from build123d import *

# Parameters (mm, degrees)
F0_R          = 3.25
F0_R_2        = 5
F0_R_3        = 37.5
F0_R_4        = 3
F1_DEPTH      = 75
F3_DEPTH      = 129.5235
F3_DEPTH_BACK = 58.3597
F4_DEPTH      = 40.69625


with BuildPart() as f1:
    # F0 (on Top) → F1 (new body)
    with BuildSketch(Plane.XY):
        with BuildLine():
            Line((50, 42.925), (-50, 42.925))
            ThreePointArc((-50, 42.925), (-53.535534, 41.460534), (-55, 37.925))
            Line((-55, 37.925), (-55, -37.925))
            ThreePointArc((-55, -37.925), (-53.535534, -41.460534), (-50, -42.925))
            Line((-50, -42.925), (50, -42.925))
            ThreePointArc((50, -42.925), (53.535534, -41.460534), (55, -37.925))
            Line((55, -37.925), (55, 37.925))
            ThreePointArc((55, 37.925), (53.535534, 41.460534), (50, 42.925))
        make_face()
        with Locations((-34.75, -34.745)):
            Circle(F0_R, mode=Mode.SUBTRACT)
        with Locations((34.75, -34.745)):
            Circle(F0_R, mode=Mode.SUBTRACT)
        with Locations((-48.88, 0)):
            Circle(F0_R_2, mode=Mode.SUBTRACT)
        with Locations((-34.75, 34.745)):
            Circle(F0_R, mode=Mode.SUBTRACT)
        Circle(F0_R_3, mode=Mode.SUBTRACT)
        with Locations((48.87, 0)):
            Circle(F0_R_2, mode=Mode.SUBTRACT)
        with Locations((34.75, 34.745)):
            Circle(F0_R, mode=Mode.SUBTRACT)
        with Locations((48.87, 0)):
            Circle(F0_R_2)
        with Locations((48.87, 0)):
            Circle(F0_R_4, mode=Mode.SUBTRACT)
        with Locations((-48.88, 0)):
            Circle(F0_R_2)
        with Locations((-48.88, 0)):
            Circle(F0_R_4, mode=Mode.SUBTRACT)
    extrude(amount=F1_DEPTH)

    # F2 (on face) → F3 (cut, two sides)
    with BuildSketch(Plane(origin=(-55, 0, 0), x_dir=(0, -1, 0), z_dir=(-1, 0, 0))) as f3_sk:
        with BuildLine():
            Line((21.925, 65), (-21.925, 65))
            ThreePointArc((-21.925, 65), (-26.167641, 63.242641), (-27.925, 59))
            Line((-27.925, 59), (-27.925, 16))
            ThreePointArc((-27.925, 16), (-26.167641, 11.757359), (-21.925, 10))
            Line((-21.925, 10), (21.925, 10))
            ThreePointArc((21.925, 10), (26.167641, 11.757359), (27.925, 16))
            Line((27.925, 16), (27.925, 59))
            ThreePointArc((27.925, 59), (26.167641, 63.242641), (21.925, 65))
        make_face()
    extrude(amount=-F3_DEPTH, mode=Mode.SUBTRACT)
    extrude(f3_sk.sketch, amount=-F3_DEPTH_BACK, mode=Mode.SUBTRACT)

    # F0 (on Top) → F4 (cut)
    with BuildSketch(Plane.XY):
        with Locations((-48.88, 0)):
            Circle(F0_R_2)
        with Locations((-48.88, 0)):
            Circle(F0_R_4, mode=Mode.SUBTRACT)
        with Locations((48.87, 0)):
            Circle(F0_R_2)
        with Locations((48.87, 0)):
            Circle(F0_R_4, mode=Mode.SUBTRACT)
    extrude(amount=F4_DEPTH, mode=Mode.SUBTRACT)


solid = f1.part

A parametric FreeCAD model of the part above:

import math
import FreeCAD as App
import Part
import Sketcher
Q = App.Units.Quantity

doc = App.newDocument("Part")
body = doc.addObject("PartDesign::Body", "Body")

# Sketch on XY plane
sketch1 = body.newObject("Sketcher::SketchObject", "Sketch")
sketch1.AttachmentSupport = (doc.getObject("XY_Plane"), [""])
sketch1.MapMode = "FlatFace"
sketch1.addGeometry([
    Part.LineSegment(App.Vector(50, 42.9, 0), App.Vector(-50, 42.9, 0)),  # 0
    Part.ArcOfCircle(Part.Circle(App.Vector(-50, 37.9, 0), App.Vector(0, 0, 1), 5), math.radians(90), math.radians(180)),  # 1
    Part.LineSegment(App.Vector(-55, 37.9, 0), App.Vector(-55, -37.9, 0)),  # 2
    Part.ArcOfCircle(Part.Circle(App.Vector(-50, -37.9, 0), App.Vector(0, 0, 1), 5), math.radians(180), math.radians(270)),  # 3
    Part.LineSegment(App.Vector(-50, -42.9, 0), App.Vector(50, -42.9, 0)),  # 4
    Part.ArcOfCircle(Part.Circle(App.Vector(50, -37.9, 0), App.Vector(0, 0, 1), 5), math.radians(-90), math.radians(0)),  # 5
    Part.LineSegment(App.Vector(55, -37.9, 0), App.Vector(55, 37.9, 0)),  # 6
    Part.ArcOfCircle(Part.Circle(App.Vector(50, 37.9, 0), App.Vector(0, 0, 1), 5), math.radians(0), math.radians(90)),  # 7
    Part.Circle(App.Vector(-34.8, -34.7, 0), App.Vector(0, 0, 1), 3.2),  # 8
    Part.Circle(App.Vector(34.8, -34.7, 0), App.Vector(0, 0, 1), 3.2),  # 9
    Part.Circle(App.Vector(-48.9, 0, 0), App.Vector(0, 0, 1), 3),  # 10
    Part.Circle(App.Vector(-34.8, 34.7, 0), App.Vector(0, 0, 1), 3.2),  # 11
    Part.Circle(App.Vector(0, 0, 0), App.Vector(0, 0, 1), 37.5),  # 12
    Part.Circle(App.Vector(48.9, 0, 0), App.Vector(0, 0, 1), 3),  # 13
    Part.Circle(App.Vector(34.8, 34.7, 0), App.Vector(0, 0, 1), 3.2),  # 14
], False)
sketch1.addConstraint([
    Sketcher.Constraint("Tangent", 0, 2, 1, 1),
    Sketcher.Constraint("Tangent", 1, 2, 2, 1),
    Sketcher.Constraint("Tangent", 2, 2, 3, 1),
    Sketcher.Constraint("Tangent", 3, 2, 4, 1),
    Sketcher.Constraint("Tangent", 4, 2, 5, 1),
    Sketcher.Constraint("Tangent", 5, 2, 6, 1),
    Sketcher.Constraint("Tangent", 6, 2, 7, 1),
    Sketcher.Constraint("Tangent", 7, 2, 0, 1),
    Sketcher.Constraint("Horizontal", 0),
    Sketcher.Constraint("Vertical", 2),
    Sketcher.Constraint("Horizontal", 4),
    Sketcher.Constraint("Vertical", 6),
    Sketcher.Constraint("Coincident", 12, 3, -1, 1),
    Sketcher.Constraint("Equal", 1, 3),
    Sketcher.Constraint("Equal", 3, 5),
    Sketcher.Constraint("Equal", 5, 7),
    Sketcher.Constraint("Equal", 8, 9),
    Sketcher.Constraint("Equal", 9, 11),
    Sketcher.Constraint("Equal", 10, 13),
    Sketcher.Constraint("Equal", 11, 14),
    Sketcher.Constraint("Symmetric", 1, 3, 5, 3, -1, 1),
    Sketcher.Constraint("Symmetric", 9, 3, 11, 3, -1, 1),
    Sketcher.Constraint("Symmetric", 8, 3, 14, 3, -1, 1),
    Sketcher.Constraint("Symmetric", 8, 3, 9, 3, -2),
    Sketcher.Constraint("PointOnObject", 10, 3, -1),
    Sketcher.Constraint("PointOnObject", 13, 3, -1),
    Sketcher.Constraint("Diameter", 10, Q("6 mm")),
    Sketcher.Constraint("Diameter", 12, Q("75 mm")),
    Sketcher.Constraint("Radius", 1, Q("5 mm")),
    Sketcher.Constraint("Diameter", 8, Q("6.5 mm")),
    Sketcher.Constraint("DistanceX", 0, 2, 0, 1, Q("100 mm")),
    Sketcher.Constraint("DistanceY", 2, 2, 2, 1, Q("75.85 mm")),
    Sketcher.Constraint("DistanceX", 8, 3, 9, 3, Q("69.5 mm")),
    Sketcher.Constraint("DistanceX", 10, 3, -1, 1, Q("48.88 mm")),
    Sketcher.Constraint("DistanceX", -1, 1, 13, 3, Q("48.87 mm")),
    Sketcher.Constraint("DistanceY", 3, 3, 8, 3, Q("3.18 mm")),
])
pad1 = body.newObject("PartDesign::Pad", "Pad")
pad1.Profile = sketch1
pad1.Length = 75

# Sketch on YZ plane
sketch2 = body.newObject("Sketcher::SketchObject", "Sketch001")
sketch2.AttachmentSupport = (doc.getObject("YZ_Plane"), [""])
sketch2.MapMode = "FlatFace"
sketch2.AttachmentOffset = App.Placement(App.Vector(0, 0, -55), App.Rotation())
sketch2.addGeometry([
    Part.LineSegment(App.Vector(-22, 65, 0), App.Vector(22, 65, 0)),  # 0
    Part.ArcOfCircle(Part.Circle(App.Vector(22, 59, 0), App.Vector(0, 0, 1), 6), math.radians(0), math.radians(90)),  # 1
    Part.LineSegment(App.Vector(28, 59, 0), App.Vector(28, 16, 0)),  # 2
    Part.ArcOfCircle(Part.Circle(App.Vector(22, 16, 0), App.Vector(0, 0, 1), 6), math.radians(-90), math.radians(0)),  # 3
    Part.LineSegment(App.Vector(22, 10, 0), App.Vector(-22, 10, 0)),  # 4
    Part.ArcOfCircle(Part.Circle(App.Vector(-22, 16, 0), App.Vector(0, 0, 1), 6), math.radians(180), math.radians(270)),  # 5
    Part.LineSegment(App.Vector(-28, 16, 0), App.Vector(-28, 59, 0)),  # 6
    Part.ArcOfCircle(Part.Circle(App.Vector(-22, 59, 0), App.Vector(0, 0, 1), 6), math.radians(90), math.radians(180)),  # 7
], False)
sketch2.addConstraint([
    Sketcher.Constraint("Tangent", 0, 2, 1, 2),
    Sketcher.Constraint("Tangent", 1, 1, 2, 1),
    Sketcher.Constraint("Tangent", 2, 2, 3, 2),
    Sketcher.Constraint("Tangent", 3, 1, 4, 1),
    Sketcher.Constraint("Tangent", 4, 2, 5, 2),
    Sketcher.Constraint("Tangent", 5, 1, 6, 1),
    Sketcher.Constraint("Tangent", 6, 2, 7, 2),
    Sketcher.Constraint("Tangent", 7, 1, 0, 1),
    Sketcher.Constraint("Horizontal", 0),
    Sketcher.Constraint("Vertical", 2),
    Sketcher.Constraint("Horizontal", 4),
    Sketcher.Constraint("Vertical", 6),
    Sketcher.Constraint("Equal", 1, 3),
    Sketcher.Constraint("Equal", 3, 5),
    Sketcher.Constraint("Equal", 5, 7),
    Sketcher.Constraint("Radius", 1, Q("5.999999 mm")),
    Sketcher.Constraint("DistanceY", 2, 2, 2, 1, Q("43 mm")),
    Sketcher.Constraint("DistanceY", -1, 1, 1, 3, Q("59.000001 mm")),
    Sketcher.Constraint("DistanceX", 0, 1, 0, 2, Q("43.85 mm")),
    Sketcher.Constraint("DistanceX", -1, 1, 1, 3, Q("21.925001 mm")),
])
pocket1 = body.newObject("PartDesign::Pocket", "Pocket")
pocket1.Profile = sketch2
pocket1.Length = 129.5235
pocket1.Reversed = True
pocket2 = body.newObject("PartDesign::Pocket", "Pocket001")
pocket2.Profile = sketch2
pocket2.Length = 58.3597
pocket2.Reversed = True

# Sketch on XY plane
sketch3 = body.newObject("Sketcher::SketchObject", "Sketch002")
sketch3.AttachmentSupport = (doc.getObject("XY_Plane"), [""])
sketch3.MapMode = "FlatFace"
sketch3.addGeometry([
    Part.Circle(App.Vector(-48.9, 0, 0), App.Vector(0, 0, 1), 5),
    Part.Circle(App.Vector(-48.9, 0, 0), App.Vector(0, 0, 1), 3),
    Part.Circle(App.Vector(48.9, 0, 0), App.Vector(0, 0, 1), 5),
    Part.Circle(App.Vector(48.9, 0, 0), App.Vector(0, 0, 1), 3),
], False)
sketch3.addConstraint([
    Sketcher.Constraint("Coincident", 1, 3, 0, 3),
    Sketcher.Constraint("Coincident", 3, 3, 2, 3),
    Sketcher.Constraint("Equal", 0, 2),
    Sketcher.Constraint("Equal", 1, 3),
    Sketcher.Constraint("PointOnObject", 0, 3, -1),
    Sketcher.Constraint("PointOnObject", 2, 3, -1),
    Sketcher.Constraint("Diameter", 0, Q("10 mm")),
    Sketcher.Constraint("Diameter", 1, Q("6 mm")),
    Sketcher.Constraint("DistanceX", 0, 3, -1, 1, Q("48.88 mm")),
    Sketcher.Constraint("DistanceX", -1, 1, 2, 3, Q("48.87 mm")),
])
pocket3 = body.newObject("PartDesign::Pocket", "Pocket002")
pocket3.Profile = sketch3
pocket3.Length = 40.69625
pocket3.Reversed = True

doc.recompute()
